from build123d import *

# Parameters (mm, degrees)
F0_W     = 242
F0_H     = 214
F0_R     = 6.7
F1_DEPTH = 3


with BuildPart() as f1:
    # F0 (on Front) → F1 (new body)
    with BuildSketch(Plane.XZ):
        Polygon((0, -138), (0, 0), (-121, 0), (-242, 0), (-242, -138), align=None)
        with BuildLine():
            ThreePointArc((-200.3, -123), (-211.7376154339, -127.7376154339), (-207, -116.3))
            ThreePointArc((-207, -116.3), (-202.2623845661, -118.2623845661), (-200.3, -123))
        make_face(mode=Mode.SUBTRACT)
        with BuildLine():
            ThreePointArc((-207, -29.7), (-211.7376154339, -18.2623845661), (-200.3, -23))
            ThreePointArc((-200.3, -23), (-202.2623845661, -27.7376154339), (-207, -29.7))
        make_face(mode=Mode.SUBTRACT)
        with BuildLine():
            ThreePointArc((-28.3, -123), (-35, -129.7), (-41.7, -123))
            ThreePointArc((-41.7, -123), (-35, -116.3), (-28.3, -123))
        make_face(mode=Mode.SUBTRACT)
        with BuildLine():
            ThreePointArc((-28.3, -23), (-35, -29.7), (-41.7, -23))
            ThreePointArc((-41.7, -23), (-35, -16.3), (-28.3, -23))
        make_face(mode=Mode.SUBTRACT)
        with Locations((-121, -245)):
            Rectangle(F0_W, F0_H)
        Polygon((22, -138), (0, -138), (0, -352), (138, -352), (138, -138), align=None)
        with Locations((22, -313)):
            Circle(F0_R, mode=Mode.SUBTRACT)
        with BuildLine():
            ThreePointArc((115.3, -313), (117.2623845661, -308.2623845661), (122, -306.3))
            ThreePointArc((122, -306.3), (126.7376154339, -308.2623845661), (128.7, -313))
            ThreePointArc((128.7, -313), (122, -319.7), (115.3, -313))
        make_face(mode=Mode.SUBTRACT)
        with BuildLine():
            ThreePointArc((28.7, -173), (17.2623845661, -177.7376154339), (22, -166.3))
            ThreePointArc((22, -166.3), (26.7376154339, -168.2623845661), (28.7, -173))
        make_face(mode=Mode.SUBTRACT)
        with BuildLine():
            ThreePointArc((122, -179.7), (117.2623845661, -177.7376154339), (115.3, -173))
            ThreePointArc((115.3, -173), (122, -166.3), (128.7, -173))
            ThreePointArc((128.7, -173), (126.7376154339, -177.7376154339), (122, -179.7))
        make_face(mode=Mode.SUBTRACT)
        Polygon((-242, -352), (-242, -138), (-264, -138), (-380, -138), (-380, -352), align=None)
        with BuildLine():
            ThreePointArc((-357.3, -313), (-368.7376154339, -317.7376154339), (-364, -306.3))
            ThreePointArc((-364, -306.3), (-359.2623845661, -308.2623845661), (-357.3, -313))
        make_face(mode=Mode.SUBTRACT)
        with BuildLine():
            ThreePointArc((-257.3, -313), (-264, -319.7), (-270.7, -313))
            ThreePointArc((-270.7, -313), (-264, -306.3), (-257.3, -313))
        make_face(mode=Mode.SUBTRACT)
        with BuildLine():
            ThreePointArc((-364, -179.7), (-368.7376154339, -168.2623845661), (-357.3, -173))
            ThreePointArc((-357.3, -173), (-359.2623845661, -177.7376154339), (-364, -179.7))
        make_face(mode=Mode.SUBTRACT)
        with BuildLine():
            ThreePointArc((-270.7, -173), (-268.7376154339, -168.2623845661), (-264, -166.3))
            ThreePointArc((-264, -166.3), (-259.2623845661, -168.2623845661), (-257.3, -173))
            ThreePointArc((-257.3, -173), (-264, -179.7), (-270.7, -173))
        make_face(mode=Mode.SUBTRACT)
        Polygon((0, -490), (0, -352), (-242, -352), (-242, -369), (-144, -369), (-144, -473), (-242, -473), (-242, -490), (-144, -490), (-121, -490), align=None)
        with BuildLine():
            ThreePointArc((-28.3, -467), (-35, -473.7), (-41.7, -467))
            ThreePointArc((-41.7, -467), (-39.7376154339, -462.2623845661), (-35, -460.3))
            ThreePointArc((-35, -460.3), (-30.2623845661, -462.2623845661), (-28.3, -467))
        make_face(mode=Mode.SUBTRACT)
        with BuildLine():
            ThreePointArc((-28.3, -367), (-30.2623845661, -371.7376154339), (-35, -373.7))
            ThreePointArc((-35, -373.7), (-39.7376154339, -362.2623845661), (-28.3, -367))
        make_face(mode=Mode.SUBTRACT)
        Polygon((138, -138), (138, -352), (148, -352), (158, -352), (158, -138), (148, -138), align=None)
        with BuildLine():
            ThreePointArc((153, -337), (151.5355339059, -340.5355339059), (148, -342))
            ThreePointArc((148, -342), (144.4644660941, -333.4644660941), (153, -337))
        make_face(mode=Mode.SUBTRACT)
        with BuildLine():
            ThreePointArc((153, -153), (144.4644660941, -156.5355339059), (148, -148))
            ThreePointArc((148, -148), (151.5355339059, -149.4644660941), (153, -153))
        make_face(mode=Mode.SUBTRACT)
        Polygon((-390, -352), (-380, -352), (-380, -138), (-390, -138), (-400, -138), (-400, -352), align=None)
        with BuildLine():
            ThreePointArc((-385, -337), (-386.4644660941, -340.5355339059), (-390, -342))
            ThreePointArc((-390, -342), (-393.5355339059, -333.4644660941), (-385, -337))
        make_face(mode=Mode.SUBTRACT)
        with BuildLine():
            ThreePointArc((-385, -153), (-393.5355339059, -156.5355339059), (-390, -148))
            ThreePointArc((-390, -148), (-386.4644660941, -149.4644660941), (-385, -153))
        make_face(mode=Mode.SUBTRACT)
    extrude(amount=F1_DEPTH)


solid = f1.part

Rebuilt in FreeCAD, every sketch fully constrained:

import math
import FreeCAD as App
import Part
import Sketcher
from FreeCAD import Vector


def add_polygon(sketch, points):
    """Adds a closed chain of lines whose ends are joined by coincident constraints."""
    first, n = sketch.GeometryCount, len(points)
    for a, b in zip(points, points[1:] + points[:1]):
        sketch.addGeometry(Part.LineSegment(App.Vector(*a, 0), App.Vector(*b, 0)), False)
    for i in range(n):
        sketch.addConstraint(Sketcher.Constraint("Coincident", first + i, 2, first + (i + 1) % n, 1))

doc = App.newDocument("Part")
body = doc.addObject("PartDesign::Body", "Body")

sketch1 = body.newObject("Sketcher::SketchObject", "Sketch")
sketch1.AttachmentSupport = (doc.getObject("XZ_Plane"), [""])
sketch1.MapMode = "FlatFace"
add_polygon(sketch1, [(0, 0), (-242, 0), (-242, -138), (-400, -138), (-400, -352), (-242, -352), (-242, -369), (-144, -369), (-144, -473), (-242, -473), (-242, -490), (0, -490), (0, -352), (158, -352), (158, -138), (0, -138)])
sketch1.addGeometry(Part.ArcOfCircle(Part.Circle(Vector(-390, -337, 0), Vector(0, 0, 1), 5), math.radians(0), math.radians(270)), False)
sketch1.addGeometry(Part.ArcOfCircle(Part.Circle(Vector(-390, -337, 0), Vector(0, 0, 1), 5), math.radians(-90), math.radians(0)), False)
sketch1.addGeometry(Part.ArcOfCircle(Part.Circle(Vector(-364, -313, 0), Vector(0, 0, 1), 7), math.radians(0), math.radians(90)), False)
sketch1.addGeometry(Part.ArcOfCircle(Part.Circle(Vector(-364, -313, 0), Vector(0, 0, 1), 7), math.radians(90), math.radians(360)), False)
sketch1.addGeometry(Part.Circle(Vector(-264, -313, 0), Vector(0, 0, 1), 7), False)
sketch1.addGeometry(Part.ArcOfCircle(Part.Circle(Vector(-35, -467, 0), Vector(0, 0, 1), 7), math.radians(0), math.radians(90)), False)
sketch1.addGeometry(Part.ArcOfCircle(Part.Circle(Vector(-35, -467, 0), Vector(0, 0, 1), 7), math.radians(180), math.radians(360)), False)
sketch1.addGeometry(Part.ArcOfCircle(Part.Circle(Vector(-35, -467, 0), Vector(0, 0, 1), 7), math.radians(90), math.radians(180)), False)
sketch1.addGeometry(Part.ArcOfCircle(Part.Circle(Vector(-35, -367, 0), Vector(0, 0, 1), 7), math.radians(0), math.radians(270)), False)
sketch1.addGeometry(Part.ArcOfCircle(Part.Circle(Vector(-35, -367, 0), Vector(0, 0, 1), 7), math.radians(-90), math.radians(0)), False)
sketch1.addGeometry(Part.Circle(Vector(22, -313, 0), Vector(0, 0, 1), 7), False)
sketch1.addGeometry(Part.ArcOfCircle(Part.Circle(Vector(148, -337, 0), Vector(0, 0, 1), 5), math.radians(0), math.radians(270)), False)
sketch1.addGeometry(Part.ArcOfCircle(Part.Circle(Vector(148, -337, 0), Vector(0, 0, 1), 5), math.radians(-90), math.radians(0)), False)
sketch1.addGeometry(Part.ArcOfCircle(Part.Circle(Vector(122, -313, 0), Vector(0, 0, 1), 7), math.radians(180), math.radians(360)), False)
sketch1.addGeometry(Part.ArcOfCircle(Part.Circle(Vector(122, -313, 0), Vector(0, 0, 1), 7), math.radians(90), math.radians(180)), False)
sketch1.addGeometry(Part.ArcOfCircle(Part.Circle(Vector(122, -313, 0), Vector(0, 0, 1), 7), math.radians(0), math.radians(90)), False)
sketch1.addGeometry(Part.ArcOfCircle(Part.Circle(Vector(-364, -173, 0), Vector(0, 0, 1), 7), math.radians(-90), math.radians(0)), False)
sketch1.addGeometry(Part.ArcOfCircle(Part.Circle(Vector(-364, -173, 0), Vector(0, 0, 1), 7), math.radians(0), math.radians(270)), False)
sketch1.addGeometry(Part.ArcOfCircle(Part.Circle(Vector(-390, -153, 0), Vector(0, 0, 1), 5), math.radians(0), math.radians(90)), False)
sketch1.addGeometry(Part.ArcOfCircle(Part.Circle(Vector(-390, -153, 0), Vector(0, 0, 1), 5), math.radians(90), math.radians(360)), False)
sketch1.addGeometry(Part.ArcOfCircle(Part.Circle(Vector(-264, -173, 0), Vector(0, 0, 1), 7), math.radians(180), math.radians(360)), False)
sketch1.addGeometry(Part.ArcOfCircle(Part.Circle(Vector(-264, -173, 0), Vector(0, 0, 1), 7), math.radians(90), math.radians(180)), False)
sketch1.addGeometry(Part.ArcOfCircle(Part.Circle(Vector(-264, -173, 0), Vector(0, 0, 1), 7), math.radians(0), math.radians(90)), False)
sketch1.addGeometry(Part.ArcOfCircle(Part.Circle(Vector(-207, -123, 0), Vector(0, 0, 1), 7), math.radians(0), math.radians(90)), False)
sketch1.addGeometry(Part.ArcOfCircle(Part.Circle(Vector(-207, -123, 0), Vector(0, 0, 1), 7), math.radians(90), math.radians(360)), False)
sketch1.addGeometry(Part.ArcOfCircle(Part.Circle(Vector(-207, -23, 0), Vector(0, 0, 1), 7), math.radians(-90), math.radians(0)), False)
sketch1.addGeometry(Part.ArcOfCircle(Part.Circle(Vector(-207, -23, 0), Vector(0, 0, 1), 7), math.radians(0), math.radians(270)), False)
sketch1.addGeometry(Part.ArcOfCircle(Part.Circle(Vector(22, -173, 0), Vector(0, 0, 1), 7), math.radians(0), math.radians(90)), False)
sketch1.addGeometry(Part.ArcOfCircle(Part.Circle(Vector(22, -173, 0), Vector(0, 0, 1), 7), math.radians(90), math.radians(360)), False)
sketch1.addGeometry(Part.ArcOfCircle(Part.Circle(Vector(122, -173, 0), Vector(0, 0, 1), 7), math.radians(-90), math.radians(0)), False)
sketch1.addGeometry(Part.ArcOfCircle(Part.Circle(Vector(122, -173, 0), Vector(0, 0, 1), 7), math.radians(180), math.radians(270)), False)
sketch1.addGeometry(Part.ArcOfCircle(Part.Circle(Vector(122, -173, 0), Vector(0, 0, 1), 7), math.radians(0), math.radians(180)), False)
sketch1.addGeometry(Part.ArcOfCircle(Part.Circle(Vector(148, -153, 0), Vector(0, 0, 1), 5), math.radians(0), math.radians(90)), False)
sketch1.addGeometry(Part.ArcOfCircle(Part.Circle(Vector(148, -153, 0), Vector(0, 0, 1), 5), math.radians(90), math.radians(360)), False)
sketch1.addGeometry(Part.Circle(Vector(-35, -123, 0), Vector(0, 0, 1), 7), False)
sketch1.addGeometry(Part.Circle(Vector(-35, -23, 0), Vector(0, 0, 1), 7), False)
sketch1.addConstraint(Sketcher.Constraint("Tangent", 16, 1, 17, 2))
sketch1.addConstraint(Sketcher.Constraint("Coincident", 17, 1, 16, 2))
sketch1.addConstraint(Sketcher.Constraint("Tangent", 18, 1, 19, 2))
sketch1.addConstraint(Sketcher.Constraint("Coincident", 19, 1, 18, 2))
sketch1.addConstraint(Sketcher.Constraint("Tangent", 21, 1, 22, 2))
sketch1.addConstraint(Sketcher.Constraint("Tangent", 22, 1, 23, 2))
sketch1.addConstraint(Sketcher.Constraint("Tangent", 23, 1, 21, 2))
sketch1.addConstraint(Sketcher.Constraint("Tangent", 24, 1, 25, 2))
sketch1.addConstraint(Sketcher.Constraint("Coincident", 25, 1, 24, 2))
sketch1.addConstraint(Sketcher.Constraint("Tangent", 27, 1, 28, 2))
sketch1.addConstraint(Sketcher.Constraint("Coincident", 28, 1, 27, 2))
sketch1.addConstraint(Sketcher.Constraint("Tangent", 29, 1, 30, 2))
sketch1.addConstraint(Sketcher.Constraint("Tangent", 30, 1, 31, 2))
sketch1.addConstraint(Sketcher.Constraint("Tangent", 31, 1, 29, 2))
sketch1.addConstraint(Sketcher.Constraint("Tangent", 32, 1, 33, 2))
sketch1.addConstraint(Sketcher.Constraint("Coincident", 33, 1, 32, 2))
sketch1.addConstraint(Sketcher.Constraint("Tangent", 34, 1, 35, 2))
sketch1.addConstraint(Sketcher.Constraint("Coincident", 35, 1, 34, 2))
sketch1.addConstraint(Sketcher.Constraint("Tangent", 36, 1, 37, 2))
sketch1.addConstraint(Sketcher.Constraint("Tangent", 37, 1, 38, 2))
sketch1.addConstraint(Sketcher.Constraint("Tangent", 38, 1, 36, 2))
sketch1.addConstraint(Sketcher.Constraint("Tangent", 39, 1, 40, 2))
sketch1.addConstraint(Sketcher.Constraint("Coincident", 40, 1, 39, 2))
sketch1.addConstraint(Sketcher.Constraint("Tangent", 41, 1, 42, 2))
sketch1.addConstraint(Sketcher.Constraint("Coincident", 42, 1, 41, 2))
sketch1.addConstraint(Sketcher.Constraint("Tangent", 43, 1, 44, 2))
sketch1.addConstraint(Sketcher.Constraint("Coincident", 44, 1, 43, 2))
sketch1.addConstraint(Sketcher.Constraint("Tangent", 45, 1, 46, 2))
sketch1.addConstraint(Sketcher.Constraint("Tangent", 46, 1, 47, 2))
sketch1.addConstraint(Sketcher.Constraint("Tangent", 47, 1, 45, 2))
sketch1.addConstraint(Sketcher.Constraint("Tangent", 48, 1, 49, 2))
sketch1.addConstraint(Sketcher.Constraint("Coincident", 49, 1, 48, 2))
sketch1.addConstraint(Sketcher.Constraint("Horizontal", 0))
sketch1.addConstraint(Sketcher.Constraint("Vertical", 1))
sketch1.addConstraint(Sketcher.Constraint("Horizontal", 2))
sketch1.addConstraint(Sketcher.Constraint("Vertical", 3))
sketch1.addConstraint(Sketcher.Constraint("Horizontal", 4))
sketch1.addConstraint(Sketcher.Constraint("Vertical", 5))
sketch1.addConstraint(Sketcher.Constraint("Horizontal", 6))
sketch1.addConstraint(Sketcher.Constraint("Vertical", 7))
sketch1.addConstraint(Sketcher.Constraint("Horizontal", 8))
sketch1.addConstraint(Sketcher.Constraint("Vertical", 9))
sketch1.addConstraint(Sketcher.Constraint("Horizontal", 10))
sketch1.addConstraint(Sketcher.Constraint("Vertical", 11))
sketch1.addConstraint(Sketcher.Constraint("Horizontal", 12))
sketch1.addConstraint(Sketcher.Constraint("Vertical", 13))
sketch1.addConstraint(Sketcher.Constraint("Horizontal", 14))
sketch1.addConstraint(Sketcher.Constraint("Vertical", 15))
sketch1.addConstraint(Sketcher.Constraint("Coincident", 15, 2, -1, 1))
sketch1.addConstraint(Sketcher.Constraint("Equal", 19, 20))
sketch1.addConstraint(Sketcher.Constraint("Equal", 20, 21))
sketch1.addConstraint(Sketcher.Constraint("Equal", 23, 24))
sketch1.addConstraint(Sketcher.Constraint("Equal", 25, 26))
sketch1.addConstraint(Sketcher.Constraint("Equal", 17, 27))
sketch1.addConstraint(Sketcher.Constraint("Equal", 26, 29))
sketch1.addConstraint(Sketcher.Constraint("Equal", 31, 32))
sketch1.addConstraint(Sketcher.Constraint("Equal", 28, 34))
sketch1.addConstraint(Sketcher.Constraint("Equal", 33, 36))
sketch1.addConstraint(Sketcher.Constraint("Equal", 38, 39))
sketch1.addConstraint(Sketcher.Constraint("Equal", 40, 41))
sketch1.addConstraint(Sketcher.Constraint("Equal", 42, 43))
sketch1.addConstraint(Sketcher.Constraint("Equal", 44, 45))
sketch1.addConstraint(Sketcher.Constraint("Equal", 35, 48))
sketch1.addConstraint(Sketcher.Constraint("Equal", 47, 50))
sketch1.addConstraint(Sketcher.Constraint("Equal", 50, 51))
sketch1.addConstraint(Sketcher.Constraint("PointOnObject", 10, 2, -2))
sketch1.addConstraint(Sketcher.Constraint("Horizontal", 19, 3, 20, 3))
sketch1.addConstraint(Sketcher.Constraint("Horizontal", 20, 3, 26, 3))
sketch1.addConstraint(Sketcher.Constraint("Horizontal", 17, 3, 27, 3))
sketch1.addConstraint(Sketcher.Constraint("Horizontal", 26, 3, 29, 3))
sketch1.addConstraint(Sketcher.Constraint("Horizontal", 33, 3, 36, 3))
sketch1.addConstraint(Sketcher.Constraint("Horizontal", 38, 3, 43, 3))
sketch1.addConstraint(Sketcher.Constraint("Horizontal", 44, 3, 45, 3))
sketch1.addConstraint(Sketcher.Constraint("Horizontal", 35, 3, 48, 3))
sketch1.addConstraint(Sketcher.Constraint("Horizontal", 40, 3, 50, 3))
sketch1.addConstraint(Sketcher.Constraint("Horizontal", 42, 3, 51, 3))
sketch1.addConstraint(Sketcher.Constraint("Horizontal", 4, 2, 11, 2))
sketch1.addConstraint(Sketcher.Constraint("Horizontal", 2, 2, 13, 2))
sketch1.addConstraint(Sketcher.Constraint("Horizontal", 28, 3, 16, 1))
sketch1.addConstraint(Sketcher.Constraint("Horizontal", 31, 3, 18, 1))
sketch1.addConstraint(Sketcher.Constraint("Horizontal", 23, 3, 21, 1))
sketch1.addConstraint(Sketcher.Constraint("Horizontal", 21, 1, 22, 1))
sketch1.addConstraint(Sketcher.Constraint("Horizontal", 25, 3, 24, 1))
sketch1.addConstraint(Sketcher.Constraint("Horizontal", 16, 1, 27, 1))
sketch1.addConstraint(Sketcher.Constraint("Horizontal", 18, 1, 29, 1))
sketch1.addConstraint(Sketcher.Constraint("Horizontal", 29, 1, 31, 1))
sketch1.addConstraint(Sketcher.Constraint("Horizontal", 47, 3, 33, 1))
sketch1.addConstraint(Sketcher.Constraint("Horizontal", 49, 3, 34, 1))
sketch1.addConstraint(Sketcher.Constraint("Horizontal", 33, 1, 36, 1))
sketch1.addConstraint(Sketcher.Constraint("Horizontal", 36, 1, 38, 1))
sketch1.addConstraint(Sketcher.Constraint("Horizontal", 50, 3, 39, 1))
sketch1.addConstraint(Sketcher.Constraint("Horizontal", 51, 3, 42, 1))
sketch1.addConstraint(Sketcher.Constraint("Horizontal", 38, 1, 43, 1))
sketch1.addConstraint(Sketcher.Constraint("Horizontal", 43, 1, 46, 1))
sketch1.addConstraint(Sketcher.Constraint("Horizontal", 46, 1, 47, 1))
sketch1.addConstraint(Sketcher.Constraint("Horizontal", 34, 1, 48, 1))
sketch1.addConstraint(Sketcher.Constraint("Vertical", 23, 3, 24, 3))
sketch1.addConstraint(Sketcher.Constraint("Vertical", 19, 3, 32, 3))
sketch1.addConstraint(Sketcher.Constraint("Vertical", 17, 3, 34, 3))
sketch1.addConstraint(Sketcher.Constraint("Vertical", 20, 3, 36, 3))
sketch1.addConstraint(Sketcher.Constraint("Vertical", 40, 3, 41, 3))
sketch1.addConstraint(Sketcher.Constraint("Vertical", 26, 3, 43, 3))
sketch1.addConstraint(Sketcher.Constraint("Vertical", 31, 3, 45, 3))
sketch1.addConstraint(Sketcher.Constraint("Vertical", 28, 3, 48, 3))
sketch1.addConstraint(Sketcher.Constraint("Vertical", 25, 3, 50, 3))
sketch1.addConstraint(Sketcher.Constraint("Vertical", 50, 3, 51, 3))
sketch1.addConstraint(Sketcher.Constraint("Vertical", 1, 2, 4, 2))
sketch1.addConstraint(Sketcher.Constraint("Vertical", 5, 2, 8, 2))
sketch1.addConstraint(Sketcher.Constraint("Vertical", 35, 3, 17, 1))
sketch1.addConstraint(Sketcher.Constraint("Vertical", 33, 3, 19, 1))
sketch1.addConstraint(Sketcher.Constraint("Vertical", 51, 3, 23, 1))
sketch1.addConstraint(Sketcher.Constraint("Vertical", 23, 1, 25, 1))
sketch1.addConstraint(Sketcher.Constraint("Vertical", 49, 3, 28, 1))
sketch1.addConstraint(Sketcher.Constraint("Vertical", 47, 3, 30, 1))
sketch1.addConstraint(Sketcher.Constraint("Vertical", 19, 1, 32, 1))
sketch1.addConstraint(Sketcher.Constraint("Vertical", 17, 1, 35, 1))
sketch1.addConstraint(Sketcher.Constraint("Vertical", 38, 3, 37, 1))
sketch1.addConstraint(Sketcher.Constraint("Vertical", 42, 3, 40, 1))
sketch1.addConstraint(Sketcher.Constraint("Vertical", 40, 1, 41, 1))
sketch1.addConstraint(Sketcher.Constraint("Vertical", 43, 3, 44, 1))
sketch1.addConstraint(Sketcher.Constraint("Vertical", 30, 1, 45, 1))
sketch1.addConstraint(Sketcher.Constraint("Vertical", 28, 1, 49, 1))
sketch1.addConstraint(Sketcher.Constraint("Equal", 4, 12))
sketch1.addConstraint(Sketcher.Constraint("Equal", 5, 9))
sketch1.addConstraint(Sketcher.Constraint("Equal", 1, 11))
sketch1.addConstraint(Sketcher.Constraint("Radius", 16, 5.0))
sketch1.addConstraint(Sketcher.Constraint("Diameter", 20, 13.4))
sketch1.addConstraint(Sketcher.Constraint("DistanceX", 0, 2, 0, 1, 242.0))
sketch1.addConstraint(Sketcher.Constraint("DistanceX", 2, 2, 2, 1, 158.0))
sketch1.addConstraint(Sketcher.Constraint("DistanceX", 6, 1, 6, 2, 98.0))
sketch1.addConstraint(Sketcher.Constraint("DistanceY", 1, 2, 1, 1, 138.0))
sketch1.addConstraint(Sketcher.Constraint("DistanceY", 3, 2, 3, 1, 214.0))
sketch1.addConstraint(Sketcher.Constraint("DistanceY", 5, 2, 5, 1, 17.0))
sketch1.addConstraint(Sketcher.Constraint("DistanceX", 16, 3, -1, 1, 390.0))
sketch1.addConstraint(Sketcher.Constraint("DistanceY", 16, 3, -1, 1, 337.0))
sketch1.addConstraint(Sketcher.Constraint("DistanceX", 18, 3, -1, 1, 364.0))
sketch1.addConstraint(Sketcher.Constraint("DistanceY", 18, 3, -1, 1, 313.0))
sketch1.addConstraint(Sketcher.Constraint("DistanceX", 20, 3, -1, 1, 264.0))
sketch1.addConstraint(Sketcher.Constraint("DistanceX", 21, 3, -1, 1, 35.0))
sketch1.addConstraint(Sketcher.Constraint("DistanceY", 21, 3, -1, 1, 467.0))
sketch1.addConstraint(Sketcher.Constraint("DistanceY", 24, 3, -1, 1, 367.0))
sketch1.addConstraint(Sketcher.Constraint("DistanceX", -1, 1, 26, 3, 22.0))
sketch1.addConstraint(Sketcher.Constraint("DistanceX", -1, 1, 27, 3, 148.0))
sketch1.addConstraint(Sketcher.Constraint("DistanceX", -1, 1, 29, 3, 122.0))
sketch1.addConstraint(Sketcher.Constraint("DistanceY", 32, 3, -1, 1, 173.0))
sketch1.addConstraint(Sketcher.Constraint("DistanceY", 34, 3, -1, 1, 153.0))
sketch1.addConstraint(Sketcher.Constraint("DistanceX", 39, 3, -1, 1, 207.0))
sketch1.addConstraint(Sketcher.Constraint("DistanceY", 39, 3, -1, 1, 123.0))
sketch1.addConstraint(Sketcher.Constraint("DistanceY", 41, 3, -1, 1, 23.0))
pad1 = body.newObject("PartDesign::Pad", "Pad")
pad1.Profile = sketch1
pad1.Length = 3

doc.recompute()
